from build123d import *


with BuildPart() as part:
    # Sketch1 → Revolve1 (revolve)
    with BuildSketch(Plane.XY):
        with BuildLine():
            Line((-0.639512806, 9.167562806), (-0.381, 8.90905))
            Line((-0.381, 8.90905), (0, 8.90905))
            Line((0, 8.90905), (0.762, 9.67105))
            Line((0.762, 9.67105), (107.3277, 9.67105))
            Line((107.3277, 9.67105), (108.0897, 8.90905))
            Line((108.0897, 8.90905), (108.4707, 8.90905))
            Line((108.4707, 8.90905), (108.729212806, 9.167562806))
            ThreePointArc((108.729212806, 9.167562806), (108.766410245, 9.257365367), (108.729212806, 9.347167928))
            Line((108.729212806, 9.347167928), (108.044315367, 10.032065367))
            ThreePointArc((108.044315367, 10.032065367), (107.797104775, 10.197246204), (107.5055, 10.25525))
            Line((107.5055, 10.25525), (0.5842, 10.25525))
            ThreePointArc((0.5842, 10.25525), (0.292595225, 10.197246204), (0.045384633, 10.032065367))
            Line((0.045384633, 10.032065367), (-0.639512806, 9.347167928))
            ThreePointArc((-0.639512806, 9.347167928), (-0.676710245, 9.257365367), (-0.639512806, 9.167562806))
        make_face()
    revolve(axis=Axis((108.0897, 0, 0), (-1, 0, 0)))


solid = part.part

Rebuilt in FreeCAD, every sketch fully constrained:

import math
import FreeCAD as App
import Part
import Sketcher
from FreeCAD import Vector
Q = App.Units.Quantity

doc = App.newDocument("Part")
body = doc.addObject("PartDesign::Body", "Body")

# Sketch on XY plane
sketch1 = body.newObject("Sketcher::SketchObject", "Sketch")
sketch1.AttachmentSupport = (doc.getObject("XY_Plane"), [""])
sketch1.MapMode = "FlatFace"
sketch1.addGeometry([
    Part.LineSegment(Vector(-0.64, 9.17, 0), Vector(-0.38, 8.91, 0)),  # 0
    Part.LineSegment(Vector(-0.38, 8.91, 0), Vector(0, 8.91, 0)),  # 1
    Part.LineSegment(Vector(0, 8.91, 0), Vector(0.76, 9.67, 0)),  # 2
    Part.LineSegment(Vector(0.76, 9.67, 0), Vector(107.33, 9.67, 0)),  # 3
    Part.LineSegment(Vector(107.33, 9.67, 0), Vector(108.09, 8.91, 0)),  # 4
    Part.LineSegment(Vector(108.09, 8.91, 0), Vector(108.47, 8.91, 0)),  # 5
    Part.LineSegment(Vector(108.47, 8.91, 0), Vector(108.73, 9.17, 0)),  # 6
    Part.ArcOfCircle(Part.Circle(Vector(108.64, 9.26, 0), Vector(0, 0, 1), 0.13), math.radians(-45), math.radians(45)),  # 7
    Part.LineSegment(Vector(108.73, 9.35, 0), Vector(108.04, 10.03, 0)),  # 8
    Part.ArcOfCircle(Part.Circle(Vector(107.51, 9.49, 0), Vector(0, 0, 1), 0.76), math.radians(45), math.radians(90)),  # 9
    Part.LineSegment(Vector(107.51, 10.26, 0), Vector(0.58, 10.26, 0)),  # 10
    Part.ArcOfCircle(Part.Circle(Vector(0.58, 9.49, 0), Vector(0, 0, 1), 0.76), math.radians(90), math.radians(135)),  # 11
    Part.LineSegment(Vector(0.05, 10.03, 0), Vector(-0.64, 9.35, 0)),  # 12
    Part.ArcOfCircle(Part.Circle(Vector(-0.55, 9.26, 0), Vector(0, 0, 1), 0.13), math.radians(135), math.radians(225)),  # 13
], False)
sketch1.addConstraint([
    Sketcher.Constraint("Coincident", 0, 2, 1, 1),
    Sketcher.Constraint("Coincident", 1, 2, 2, 1),
    Sketcher.Constraint("Coincident", 2, 2, 3, 1),
    Sketcher.Constraint("Coincident", 3, 2, 4, 1),
    Sketcher.Constraint("Coincident", 4, 2, 5, 1),
    Sketcher.Constraint("Coincident", 5, 2, 6, 1),
    Sketcher.Constraint("Tangent", 6, 2, 7, 1),
    Sketcher.Constraint("Tangent", 7, 2, 8, 1),
    Sketcher.Constraint("Tangent", 8, 2, 9, 1),
    Sketcher.Constraint("Tangent", 9, 2, 10, 1),
    Sketcher.Constraint("Tangent", 10, 2, 11, 1),
    Sketcher.Constraint("Tangent", 11, 2, 12, 1),
    Sketcher.Constraint("Tangent", 12, 2, 13, 1),
    Sketcher.Constraint("Tangent", 13, 2, 0, 1),
    Sketcher.Constraint("Horizontal", 1),
    Sketcher.Constraint("Horizontal", 3),
    Sketcher.Constraint("Horizontal", 5),
    Sketcher.Constraint("Horizontal", 10),
    Sketcher.Constraint("Equal", 9, 11),
    Sketcher.Constraint("Equal", 7, 13),
    Sketcher.Constraint("PointOnObject", 1, 2, -2),
    Sketcher.Constraint("Perpendicular", 0, 2),
    Sketcher.Constraint("Perpendicular", 2, 4),
    Sketcher.Constraint("Perpendicular", 4, 6),
    Sketcher.Constraint("Perpendicular", 6, 8),
    Sketcher.Constraint("Perpendicular", 8, 12),
    Sketcher.Constraint("Horizontal", 7, 3, 13, 3),
    Sketcher.Constraint("Horizontal", 1, 2, 4, 2),
    Sketcher.Constraint("Horizontal", 8, 2, 11, 2),
    Sketcher.Constraint("Equal", 1, 5),
    Sketcher.Constraint("Radius", 9, Q("0.03 in")),
    Sketcher.Constraint("Radius", 7, Q("0.005 in")),
    Sketcher.Constraint("DistanceX", 1, 1, 1, 2, Q("0.015 in")),
    Sketcher.Constraint("DistanceX", -1, 1, 2, 2, Q("0.03 in")),
    Sketcher.Constraint("DistanceX", 3, 1, 3, 2, Q("4.1955 in")),
    Sketcher.Constraint("DistanceX", 10, 2, 10, 1, Q("4.2095 in")),
    Sketcher.Constraint("DistanceY", 0, 2, 11, 3, Q("0.023 in")),
    Sketcher.Constraint("DistanceY", -1, 1, 9, 3, Q("9.49325 mm")),
])
revolution = body.newObject("PartDesign::Revolution", "Revolution")
revolution.Profile = sketch1
revolution.ReferenceAxis = (sketch1, ["H_Axis"])
revolution.Angle = 360

doc.recompute()
